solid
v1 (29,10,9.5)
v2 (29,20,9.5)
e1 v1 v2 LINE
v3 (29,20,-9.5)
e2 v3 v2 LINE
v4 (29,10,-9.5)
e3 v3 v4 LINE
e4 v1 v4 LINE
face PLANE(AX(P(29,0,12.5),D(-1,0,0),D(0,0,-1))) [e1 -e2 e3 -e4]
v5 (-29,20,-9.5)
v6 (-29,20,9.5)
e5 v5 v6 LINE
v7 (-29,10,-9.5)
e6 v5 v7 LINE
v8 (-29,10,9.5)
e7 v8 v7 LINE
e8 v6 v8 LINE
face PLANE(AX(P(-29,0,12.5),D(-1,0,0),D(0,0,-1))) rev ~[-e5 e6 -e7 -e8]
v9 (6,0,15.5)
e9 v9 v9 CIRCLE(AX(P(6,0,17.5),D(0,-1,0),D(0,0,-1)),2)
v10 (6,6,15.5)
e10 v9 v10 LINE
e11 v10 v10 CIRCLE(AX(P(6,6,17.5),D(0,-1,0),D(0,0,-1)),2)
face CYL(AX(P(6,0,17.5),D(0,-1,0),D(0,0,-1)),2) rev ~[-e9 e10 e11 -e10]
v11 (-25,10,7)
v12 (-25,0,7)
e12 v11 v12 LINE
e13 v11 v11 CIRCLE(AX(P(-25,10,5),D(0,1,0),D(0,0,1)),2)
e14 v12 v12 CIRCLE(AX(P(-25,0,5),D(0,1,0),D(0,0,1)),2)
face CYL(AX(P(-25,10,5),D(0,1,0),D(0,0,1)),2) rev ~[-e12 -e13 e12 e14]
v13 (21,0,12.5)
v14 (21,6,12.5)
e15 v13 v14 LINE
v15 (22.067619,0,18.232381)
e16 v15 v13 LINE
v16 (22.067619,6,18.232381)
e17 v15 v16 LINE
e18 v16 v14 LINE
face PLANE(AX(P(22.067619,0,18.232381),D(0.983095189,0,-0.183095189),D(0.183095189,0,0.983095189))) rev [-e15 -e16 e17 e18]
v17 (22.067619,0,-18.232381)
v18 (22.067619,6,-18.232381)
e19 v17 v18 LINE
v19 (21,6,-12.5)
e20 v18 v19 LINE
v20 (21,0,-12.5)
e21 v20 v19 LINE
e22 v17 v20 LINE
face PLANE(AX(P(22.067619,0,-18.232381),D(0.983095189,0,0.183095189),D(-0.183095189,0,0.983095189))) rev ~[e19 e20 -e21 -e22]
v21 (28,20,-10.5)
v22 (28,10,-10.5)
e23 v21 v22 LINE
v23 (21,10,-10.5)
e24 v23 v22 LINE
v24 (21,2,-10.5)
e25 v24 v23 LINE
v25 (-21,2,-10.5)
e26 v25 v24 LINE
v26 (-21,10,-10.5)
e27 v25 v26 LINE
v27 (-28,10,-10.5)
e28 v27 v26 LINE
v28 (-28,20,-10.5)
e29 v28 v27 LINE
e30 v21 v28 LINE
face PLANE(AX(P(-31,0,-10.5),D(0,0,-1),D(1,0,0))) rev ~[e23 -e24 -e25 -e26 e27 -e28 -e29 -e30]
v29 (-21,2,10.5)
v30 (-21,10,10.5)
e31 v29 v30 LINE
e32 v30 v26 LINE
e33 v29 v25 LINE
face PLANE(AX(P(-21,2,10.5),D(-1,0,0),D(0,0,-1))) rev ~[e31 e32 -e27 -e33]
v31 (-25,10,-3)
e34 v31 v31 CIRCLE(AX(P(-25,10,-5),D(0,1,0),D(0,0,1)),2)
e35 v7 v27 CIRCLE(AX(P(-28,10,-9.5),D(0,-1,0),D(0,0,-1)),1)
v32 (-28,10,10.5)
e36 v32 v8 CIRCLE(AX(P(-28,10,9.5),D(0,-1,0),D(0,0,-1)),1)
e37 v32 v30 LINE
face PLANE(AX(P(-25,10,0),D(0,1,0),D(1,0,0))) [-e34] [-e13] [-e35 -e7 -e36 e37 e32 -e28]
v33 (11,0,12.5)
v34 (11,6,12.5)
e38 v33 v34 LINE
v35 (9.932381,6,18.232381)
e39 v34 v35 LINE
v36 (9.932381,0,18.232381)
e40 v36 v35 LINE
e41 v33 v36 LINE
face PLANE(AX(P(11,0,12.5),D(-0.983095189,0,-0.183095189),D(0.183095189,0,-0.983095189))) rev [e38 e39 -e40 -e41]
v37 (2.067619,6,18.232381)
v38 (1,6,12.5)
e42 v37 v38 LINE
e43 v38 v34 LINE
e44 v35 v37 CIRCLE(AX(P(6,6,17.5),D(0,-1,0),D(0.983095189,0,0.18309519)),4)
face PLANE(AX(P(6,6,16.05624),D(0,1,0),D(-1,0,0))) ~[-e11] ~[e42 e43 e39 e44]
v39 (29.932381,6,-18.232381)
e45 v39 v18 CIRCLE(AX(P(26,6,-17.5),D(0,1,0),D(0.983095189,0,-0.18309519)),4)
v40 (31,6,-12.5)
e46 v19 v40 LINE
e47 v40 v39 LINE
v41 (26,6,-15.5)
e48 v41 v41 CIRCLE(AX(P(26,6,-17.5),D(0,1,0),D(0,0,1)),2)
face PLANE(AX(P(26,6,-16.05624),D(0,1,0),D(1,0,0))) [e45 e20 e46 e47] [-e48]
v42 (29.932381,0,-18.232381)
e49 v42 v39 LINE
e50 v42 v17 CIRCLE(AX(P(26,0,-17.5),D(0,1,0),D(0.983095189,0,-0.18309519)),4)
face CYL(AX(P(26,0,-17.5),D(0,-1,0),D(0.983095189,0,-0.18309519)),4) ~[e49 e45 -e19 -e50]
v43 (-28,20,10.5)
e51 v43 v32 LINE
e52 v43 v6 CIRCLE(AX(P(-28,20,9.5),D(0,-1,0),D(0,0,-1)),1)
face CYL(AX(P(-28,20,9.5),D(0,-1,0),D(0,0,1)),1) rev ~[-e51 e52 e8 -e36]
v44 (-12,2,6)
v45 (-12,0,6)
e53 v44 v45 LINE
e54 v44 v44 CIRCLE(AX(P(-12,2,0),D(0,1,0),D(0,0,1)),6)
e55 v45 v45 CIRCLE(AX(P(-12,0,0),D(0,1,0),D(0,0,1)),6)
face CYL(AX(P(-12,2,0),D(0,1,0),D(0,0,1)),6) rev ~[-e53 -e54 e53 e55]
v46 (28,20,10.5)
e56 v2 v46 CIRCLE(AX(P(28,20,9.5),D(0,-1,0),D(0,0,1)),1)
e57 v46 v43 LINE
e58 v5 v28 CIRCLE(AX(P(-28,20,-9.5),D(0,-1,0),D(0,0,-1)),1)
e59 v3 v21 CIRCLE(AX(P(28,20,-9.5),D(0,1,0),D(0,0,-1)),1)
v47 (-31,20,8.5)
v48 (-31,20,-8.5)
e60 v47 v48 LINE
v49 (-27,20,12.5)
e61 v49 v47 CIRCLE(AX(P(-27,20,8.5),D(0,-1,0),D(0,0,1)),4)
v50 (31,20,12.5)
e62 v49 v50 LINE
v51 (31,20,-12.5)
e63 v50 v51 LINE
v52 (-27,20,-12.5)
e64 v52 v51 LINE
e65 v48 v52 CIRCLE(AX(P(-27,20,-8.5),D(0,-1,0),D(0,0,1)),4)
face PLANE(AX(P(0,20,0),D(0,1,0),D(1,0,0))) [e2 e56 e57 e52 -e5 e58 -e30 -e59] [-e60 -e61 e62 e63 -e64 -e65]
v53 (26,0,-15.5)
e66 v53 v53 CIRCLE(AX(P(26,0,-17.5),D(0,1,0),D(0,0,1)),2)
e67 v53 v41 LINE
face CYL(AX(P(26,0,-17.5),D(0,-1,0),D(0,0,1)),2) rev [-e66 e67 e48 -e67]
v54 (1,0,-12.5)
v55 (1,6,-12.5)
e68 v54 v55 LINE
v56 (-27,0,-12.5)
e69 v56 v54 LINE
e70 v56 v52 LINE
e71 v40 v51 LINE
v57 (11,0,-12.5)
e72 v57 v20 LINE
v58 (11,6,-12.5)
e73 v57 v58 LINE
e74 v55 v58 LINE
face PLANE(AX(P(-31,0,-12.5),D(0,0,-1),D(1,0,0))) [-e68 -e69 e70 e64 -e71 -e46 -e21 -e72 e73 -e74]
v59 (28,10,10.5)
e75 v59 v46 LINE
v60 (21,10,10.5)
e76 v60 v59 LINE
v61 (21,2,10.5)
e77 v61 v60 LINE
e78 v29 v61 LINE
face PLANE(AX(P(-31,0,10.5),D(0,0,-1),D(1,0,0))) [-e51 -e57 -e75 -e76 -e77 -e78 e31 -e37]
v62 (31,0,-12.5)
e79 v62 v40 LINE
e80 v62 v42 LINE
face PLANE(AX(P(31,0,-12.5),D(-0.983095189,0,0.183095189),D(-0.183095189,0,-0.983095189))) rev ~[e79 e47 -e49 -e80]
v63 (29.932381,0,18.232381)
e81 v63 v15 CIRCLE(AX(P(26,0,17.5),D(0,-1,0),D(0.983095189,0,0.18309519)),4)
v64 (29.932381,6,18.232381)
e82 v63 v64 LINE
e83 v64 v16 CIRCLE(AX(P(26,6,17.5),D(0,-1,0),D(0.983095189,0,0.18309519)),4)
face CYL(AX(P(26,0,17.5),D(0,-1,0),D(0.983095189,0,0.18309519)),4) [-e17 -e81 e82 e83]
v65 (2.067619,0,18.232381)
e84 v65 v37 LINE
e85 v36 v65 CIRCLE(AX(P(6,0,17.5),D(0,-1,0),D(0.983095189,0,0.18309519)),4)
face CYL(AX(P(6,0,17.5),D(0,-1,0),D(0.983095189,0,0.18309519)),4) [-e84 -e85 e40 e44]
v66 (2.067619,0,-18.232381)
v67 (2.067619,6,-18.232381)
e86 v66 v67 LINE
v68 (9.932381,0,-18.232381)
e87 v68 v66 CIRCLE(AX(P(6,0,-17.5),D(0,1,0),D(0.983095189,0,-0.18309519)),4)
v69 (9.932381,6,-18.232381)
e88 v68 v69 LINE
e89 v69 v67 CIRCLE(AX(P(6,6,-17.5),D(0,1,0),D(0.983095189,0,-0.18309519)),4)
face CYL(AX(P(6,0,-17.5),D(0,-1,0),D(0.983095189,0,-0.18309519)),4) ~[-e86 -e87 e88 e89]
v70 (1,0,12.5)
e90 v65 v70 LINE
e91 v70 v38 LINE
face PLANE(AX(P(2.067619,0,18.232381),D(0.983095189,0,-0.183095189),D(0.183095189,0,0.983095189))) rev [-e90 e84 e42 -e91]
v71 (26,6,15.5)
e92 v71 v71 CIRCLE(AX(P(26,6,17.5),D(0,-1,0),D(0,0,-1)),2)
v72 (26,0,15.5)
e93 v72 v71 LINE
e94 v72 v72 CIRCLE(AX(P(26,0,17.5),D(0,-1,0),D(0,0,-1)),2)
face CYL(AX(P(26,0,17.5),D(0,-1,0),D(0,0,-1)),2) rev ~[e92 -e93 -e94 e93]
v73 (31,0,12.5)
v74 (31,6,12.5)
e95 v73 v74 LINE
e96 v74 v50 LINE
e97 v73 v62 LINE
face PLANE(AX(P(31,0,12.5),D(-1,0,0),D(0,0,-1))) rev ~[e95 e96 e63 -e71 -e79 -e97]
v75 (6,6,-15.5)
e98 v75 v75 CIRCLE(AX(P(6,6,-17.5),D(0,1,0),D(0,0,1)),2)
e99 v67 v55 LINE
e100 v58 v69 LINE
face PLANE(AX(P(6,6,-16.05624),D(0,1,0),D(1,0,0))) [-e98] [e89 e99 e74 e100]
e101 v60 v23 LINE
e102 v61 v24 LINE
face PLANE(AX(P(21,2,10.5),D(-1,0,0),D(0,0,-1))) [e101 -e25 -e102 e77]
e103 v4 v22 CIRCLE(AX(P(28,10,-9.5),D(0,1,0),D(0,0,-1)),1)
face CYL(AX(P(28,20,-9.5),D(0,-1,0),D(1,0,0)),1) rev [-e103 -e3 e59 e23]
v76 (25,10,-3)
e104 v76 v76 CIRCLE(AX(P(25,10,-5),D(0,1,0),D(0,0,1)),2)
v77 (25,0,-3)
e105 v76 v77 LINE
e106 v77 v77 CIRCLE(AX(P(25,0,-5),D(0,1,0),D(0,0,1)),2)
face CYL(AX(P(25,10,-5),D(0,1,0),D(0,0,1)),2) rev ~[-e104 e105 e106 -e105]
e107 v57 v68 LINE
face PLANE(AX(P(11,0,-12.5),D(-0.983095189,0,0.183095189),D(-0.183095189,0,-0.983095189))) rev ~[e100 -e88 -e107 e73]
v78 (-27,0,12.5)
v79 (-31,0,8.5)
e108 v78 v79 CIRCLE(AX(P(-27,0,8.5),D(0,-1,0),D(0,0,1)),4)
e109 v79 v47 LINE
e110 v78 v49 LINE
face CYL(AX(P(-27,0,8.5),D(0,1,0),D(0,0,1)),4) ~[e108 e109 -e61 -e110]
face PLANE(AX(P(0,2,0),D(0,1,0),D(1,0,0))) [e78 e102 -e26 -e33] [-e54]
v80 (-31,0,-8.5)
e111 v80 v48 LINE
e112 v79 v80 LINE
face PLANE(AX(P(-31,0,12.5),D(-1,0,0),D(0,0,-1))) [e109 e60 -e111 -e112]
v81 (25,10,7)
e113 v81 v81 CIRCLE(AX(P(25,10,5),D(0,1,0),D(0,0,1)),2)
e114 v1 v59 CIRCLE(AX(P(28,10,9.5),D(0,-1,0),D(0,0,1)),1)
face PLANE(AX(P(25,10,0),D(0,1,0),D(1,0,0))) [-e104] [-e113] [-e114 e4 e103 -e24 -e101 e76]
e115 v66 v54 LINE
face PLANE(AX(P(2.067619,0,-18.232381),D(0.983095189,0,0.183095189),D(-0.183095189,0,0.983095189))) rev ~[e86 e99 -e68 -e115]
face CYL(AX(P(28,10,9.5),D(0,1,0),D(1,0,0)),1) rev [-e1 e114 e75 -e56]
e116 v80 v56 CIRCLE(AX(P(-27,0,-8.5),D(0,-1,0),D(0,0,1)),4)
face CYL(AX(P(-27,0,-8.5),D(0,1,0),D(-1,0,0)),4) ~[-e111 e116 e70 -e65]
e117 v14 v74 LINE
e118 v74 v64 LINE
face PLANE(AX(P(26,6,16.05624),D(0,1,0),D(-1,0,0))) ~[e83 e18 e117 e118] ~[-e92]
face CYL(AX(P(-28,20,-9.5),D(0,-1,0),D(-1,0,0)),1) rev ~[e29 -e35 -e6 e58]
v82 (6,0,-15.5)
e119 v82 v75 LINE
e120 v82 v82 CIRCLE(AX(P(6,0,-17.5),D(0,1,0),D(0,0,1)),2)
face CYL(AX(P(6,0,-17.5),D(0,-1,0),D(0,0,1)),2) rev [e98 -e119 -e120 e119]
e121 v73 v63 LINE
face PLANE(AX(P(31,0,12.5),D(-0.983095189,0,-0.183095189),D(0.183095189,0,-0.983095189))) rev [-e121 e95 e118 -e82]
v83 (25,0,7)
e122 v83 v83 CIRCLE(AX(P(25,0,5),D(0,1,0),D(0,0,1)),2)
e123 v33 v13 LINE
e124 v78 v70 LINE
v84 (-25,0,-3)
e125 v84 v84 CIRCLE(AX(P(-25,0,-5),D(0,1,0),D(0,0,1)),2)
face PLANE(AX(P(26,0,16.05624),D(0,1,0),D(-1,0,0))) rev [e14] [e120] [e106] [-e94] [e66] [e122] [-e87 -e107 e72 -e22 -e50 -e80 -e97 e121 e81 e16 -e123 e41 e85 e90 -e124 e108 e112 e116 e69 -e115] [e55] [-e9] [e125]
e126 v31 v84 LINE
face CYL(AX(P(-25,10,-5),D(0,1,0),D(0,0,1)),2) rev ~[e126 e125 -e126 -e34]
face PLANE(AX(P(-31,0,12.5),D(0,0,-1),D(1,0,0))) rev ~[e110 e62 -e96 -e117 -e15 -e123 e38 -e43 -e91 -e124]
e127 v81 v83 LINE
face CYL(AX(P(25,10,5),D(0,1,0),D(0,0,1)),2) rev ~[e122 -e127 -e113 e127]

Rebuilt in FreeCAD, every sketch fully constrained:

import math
import FreeCAD as App
import Part
import Sketcher

V = App.Vector


def edges_at(feature, points):
    """Names of the edges that pass closest to the given points."""
    edges = feature.Shape.Edges
    near = lambda p: min(range(len(edges)), key=lambda i: edges[i].distToShape(Part.Vertex(*p))[0])
    return sorted({f"Edge{near(p) + 1}" for p in points})


def faces_at(feature, points):
    """Names of the faces that lie closest to the given points."""
    faces = feature.Shape.Faces
    near = lambda p: min(range(len(faces)), key=lambda i: faces[i].distToShape(Part.Vertex(*p))[0])
    return sorted({f"Face{near(p) + 1}" for p in points})


def add_polygon(sketch, points):
    """Adds a closed chain of lines whose ends are joined by coincident constraints."""
    first, n = sketch.GeometryCount, len(points)
    for a, b in zip(points, points[1:] + points[:1]):
        sketch.addGeometry(Part.LineSegment(App.Vector(*a, 0), App.Vector(*b, 0)), False)
    for i in range(n):
        sketch.addConstraint(Sketcher.Constraint("Coincident", first + i, 2, first + (i + 1) % n, 1))

doc = App.newDocument("Part")
params = doc.addObject("Spreadsheet::Sheet", "Params")
for row, (alias, value) in enumerate([
    ("sketch1_width", "62 mm"),
    ("sketch1_height", "25 mm"),
    ("pad1_length", "20 mm"),
    ("thickness_wall", "2 mm"),
    ("sketch2_width", "8 mm"),
    ("sketch2_height", "21 mm"),
    ("pad2_length", "8 mm"),
    ("sketch3_diameter", "4 mm"),
    ("sketch4_diameter", "12 mm"),
    ("sketch5_diameter", "4 mm"),
    ("sketch5_radius", "4 mm"),
    ("sketch5_width", "10 mm"),
    ("pad3_length", "6 mm"),
    ("fillet_radius", "4 mm"),
    ("fillet2_radius", "1 mm"),
], start=1):
    params.set(f"A{row}", alias)
    params.set(f"B{row}", "=" + value)
    params.setAlias(f"B{row}", alias)

body = doc.addObject("PartDesign::Body", "Body")

sketch1 = body.newObject("Sketcher::SketchObject", "Sketch")
sketch1.AttachmentSupport = (doc.getObject("XZ_Plane"), [""])
sketch1.MapMode = "FlatFace"
add_polygon(sketch1, [(-31, -12), (-31, 12), (31, 12), (31, -12)])
sketch1.addConstraint([
    Sketcher.Constraint("Vertical", 0),
    Sketcher.Constraint("Horizontal", 1),
    Sketcher.Constraint("Vertical", 2),
    Sketcher.Constraint("Horizontal", 3),
    Sketcher.Constraint("Symmetric", 0, 2, 2, 2, -1, 1),
    Sketcher.Constraint("DistanceX", 1, 1, 1, 2, 62.0),
    Sketcher.Constraint("DistanceY", 0, 1, 0, 2, 25.0),
])
sketch1.setExpression("Constraints[9]", "Params.sketch1_width")
sketch1.setExpression("Constraints[10]", "Params.sketch1_height")
pad1 = body.newObject("PartDesign::Pad", "Pad")
pad1.Profile = sketch1
pad1.setExpression("Length", "Params.pad1_length")
pad1.Reversed = True
doc.recompute()

thickness = body.newObject("PartDesign::Thickness", "Thickness")
thickness.Base = (pad1, faces_at(pad1, [(0, 20, 0)]))
thickness.setExpression("Value", "Params.thickness_wall")
thickness.Reversed = True
thickness.Join = "Intersection"

sketch2 = body.newObject("Sketcher::SketchObject", "Sketch001")
sketch2.AttachmentSupport = (doc.getObject("XZ_Plane"), [""])
sketch2.MapMode = "FlatFace"
sketch2.AttachmentOffset = App.Placement(V(0, 0, -2), App.Rotation())
add_polygon(sketch2, [(-29, -10), (-29, 10), (-21, 10), (-21, -10)])
add_polygon(sketch2, [(21, -10), (21, 10), (29, 10), (29, -10)])
sketch2.addConstraint([
    Sketcher.Constraint("Vertical", 0),
    Sketcher.Constraint("Horizontal", 1),
    Sketcher.Constraint("Vertical", 2),
    Sketcher.Constraint("Horizontal", 3),
    Sketcher.Constraint("Vertical", 4),
    Sketcher.Constraint("Horizontal", 5),
    Sketcher.Constraint("Vertical", 6),
    Sketcher.Constraint("Horizontal", 7),
    Sketcher.Constraint("Symmetric", 2, 2, 4, 2, -1, 1),
    Sketcher.Constraint("Symmetric", 0, 2, 6, 2, -1, 1),
    Sketcher.Constraint("Horizontal", 1, 2, 4, 2),
    Sketcher.Constraint("DistanceX", 1, 1, 1, 2, 8.0),
    Sketcher.Constraint("DistanceY", 0, 1, 0, 2, 21.0),
    Sketcher.Constraint("DistanceX", 0, 2, -1, 1, 29.0),
])
sketch2.setExpression("Constraints[19]", "Params.sketch2_width")
sketch2.setExpression("Constraints[20]", "Params.sketch2_height")
pad2 = body.newObject("PartDesign::Pad", "Pad001")
pad2.Profile = sketch2
pad2.setExpression("Length", "Params.pad2_length")
pad2.Reversed = True

sketch3 = body.newObject("Sketcher::SketchObject", "Sketch002")
sketch3.AttachmentSupport = (doc.getObject("XZ_Plane"), [""])
sketch3.MapMode = "FlatFace"
sketch3.AttachmentOffset = App.Placement(V(0, 0, -10), App.Rotation())
sketch3.addGeometry([
    Part.Circle(V(-25, -5, 0), V(0, 0, 1), 2),
    Part.Circle(V(-25, 5, 0), V(0, 0, 1), 2),
    Part.Circle(V(25, -5, 0), V(0, 0, 1), 2),
    Part.Circle(V(25, 5, 0), V(0, 0, 1), 2),
], False)
sketch3.addConstraint([
    Sketcher.Constraint("Equal", 0, 1),
    Sketcher.Constraint("Equal", 1, 2),
    Sketcher.Constraint("Equal", 2, 3),
    Sketcher.Constraint("Symmetric", 1, 3, 2, 3, -1, 1),
    Sketcher.Constraint("Symmetric", 0, 3, 3, 3, -1, 1),
    Sketcher.Constraint("Symmetric", 0, 3, 2, 3, -2),
    Sketcher.Constraint("Diameter", 0, 4.0),
    Sketcher.Constraint("DistanceX", 0, 3, -1, 1, 25.0),
    Sketcher.Constraint("DistanceY", 0, 3, -1, 1, 5.0),
])
sketch3.setExpression("Constraints[6]", "Params.sketch3_diameter")
pocket1 = body.newObject("PartDesign::Pocket", "Pocket")
pocket1.Profile = sketch3
pocket1.Type = "ThroughAll"
pocket1.Reversed = True

sketch4 = body.newObject("Sketcher::SketchObject", "Sketch003")
sketch4.AttachmentSupport = (doc.getObject("XZ_Plane"), [""])
sketch4.MapMode = "FlatFace"
sketch4.AttachmentOffset = App.Placement(V(0, 0, -2), App.Rotation())
sketch4.addGeometry(Part.Circle(V(-12, 0, 0), V(0, 0, 1), 6), False)
sketch4.addConstraint([
    Sketcher.Constraint("PointOnObject", 0, 3, -1),
    Sketcher.Constraint("Diameter", 0, 12.0),
    Sketcher.Constraint("DistanceX", 0, 3, -1, 1, 12.0),
])
sketch4.setExpression("Constraints[1]", "Params.sketch4_diameter")
pocket2 = body.newObject("PartDesign::Pocket", "Pocket001")
pocket2.Profile = sketch4
pocket2.Type = "ThroughAll"
pocket2.Reversed = True

sketch5 = body.newObject("Sketcher::SketchObject", "Sketch004")
sketch5.AttachmentSupport = (doc.getObject("XZ_Plane"), [""])
sketch5.MapMode = "FlatFace"
sketch5.addGeometry([
    Part.LineSegment(V(22.1, -18.2, 0), V(21, -12.5, 0)),
    Part.LineSegment(V(21, -12.5, 0), V(31, -12.5, 0)),
    Part.LineSegment(V(31, -12.5, 0), V(29.9, -18.2, 0)),
    Part.ArcOfCircle(Part.Circle(V(26, -17.5, 0), V(0, 0, 1), 4), math.radians(-169), math.radians(-11)),
    Part.Circle(V(26, -17.5, 0), V(0, 0, 1), 2),
    Part.LineSegment(V(2.1, -18.2, 0), V(1, -12.5, 0)),
    Part.LineSegment(V(1, -12.5, 0), V(11, -12.5, 0)),
    Part.LineSegment(V(11, -12.5, 0), V(9.9, -18.2, 0)),
    Part.ArcOfCircle(Part.Circle(V(6, -17.5, 0), V(0, 0, 1), 4), math.radians(-169), math.radians(-11)),
    Part.Circle(V(6, -17.5, 0), V(0, 0, 1), 2),
], False)
sketch5.addConstraint([
    Sketcher.Constraint("Coincident", 0, 2, 1, 1),
    Sketcher.Constraint("Coincident", 1, 2, 2, 1),
    Sketcher.Constraint("Tangent", 2, 2, 3, 2),
    Sketcher.Constraint("Tangent", 3, 1, 0, 1),
    Sketcher.Constraint("Coincident", 5, 2, 6, 1),
    Sketcher.Constraint("Coincident", 6, 2, 7, 1),
    Sketcher.Constraint("Tangent", 7, 2, 8, 2),
    Sketcher.Constraint("Tangent", 8, 1, 5, 1),
    Sketcher.Constraint("Horizontal", 1),
    Sketcher.Constraint("Horizontal", 6),
    Sketcher.Constraint("Coincident", 4, 3, 3, 3),
    Sketcher.Constraint("Coincident", 9, 3, 8, 3),
    Sketcher.Constraint("Equal", 3, 8),
    Sketcher.Constraint("Equal", 4, 9),
    Sketcher.Constraint("Parallel", 0, 5),
    Sketcher.Constraint("Parallel", 2, 7),
    Sketcher.Constraint("Horizontal", 4, 3, 8, 3),
    Sketcher.Constraint("Horizontal", 2, 2, 3, 1),
    Sketcher.Constraint("Horizontal", 1, 2, 5, 2),
    Sketcher.Constraint("Diameter", 4, 4.0),
    Sketcher.Constraint("Radius", 3, 4.0),
    Sketcher.Constraint("DistanceX", 1, 1, 1, 2, 10.0),
    Sketcher.Constraint("DistanceX", -1, 1, 3, 3, 26.0),
    Sketcher.Constraint("DistanceX", -1, 1, 8, 3, 6.0),
    Sketcher.Constraint("DistanceY", 3, 3, 0, 2, 5.0),
    Sketcher.Constraint("DistanceY", 3, 3, -1, 1, 17.5),
])
sketch5.setExpression("Constraints[19]", "Params.sketch5_diameter")
sketch5.setExpression("Constraints[20]", "Params.sketch5_radius")
sketch5.setExpression("Constraints[21]", "Params.sketch5_width")
pad3 = body.newObject("PartDesign::Pad", "Pad002")
pad3.Profile = sketch5
pad3.setExpression("Length", "Params.pad3_length")
pad3.Reversed = True
doc.recompute()

mirrored = body.newObject("PartDesign::Mirrored", "Mirrored")
mirrored.Originals = [pad3]
mirrored.MirrorPlane = (doc.getObject("XY_Plane"), [""])
body.Tip = mirrored
doc.recompute()

fillet = body.newObject("PartDesign::Fillet", "Fillet")
fillet.Base = (mirrored, edges_at(mirrored, [(-31, 10, 12.5), (-31, 10, -12.5)]))
fillet.setExpression("Radius", "Params.fillet_radius")
doc.recompute()

fillet2 = body.newObject("PartDesign::Fillet", "Fillet001")
fillet2.Base = (fillet, edges_at(fillet, [
    (29, 15, 10.5),
    (29, 15, -10.5),
    (-29, 15, -10.5),
    (-29, 15, 10.5),
]))
fillet2.setExpression("Radius", "Params.fillet2_radius")

doc.recompute()
